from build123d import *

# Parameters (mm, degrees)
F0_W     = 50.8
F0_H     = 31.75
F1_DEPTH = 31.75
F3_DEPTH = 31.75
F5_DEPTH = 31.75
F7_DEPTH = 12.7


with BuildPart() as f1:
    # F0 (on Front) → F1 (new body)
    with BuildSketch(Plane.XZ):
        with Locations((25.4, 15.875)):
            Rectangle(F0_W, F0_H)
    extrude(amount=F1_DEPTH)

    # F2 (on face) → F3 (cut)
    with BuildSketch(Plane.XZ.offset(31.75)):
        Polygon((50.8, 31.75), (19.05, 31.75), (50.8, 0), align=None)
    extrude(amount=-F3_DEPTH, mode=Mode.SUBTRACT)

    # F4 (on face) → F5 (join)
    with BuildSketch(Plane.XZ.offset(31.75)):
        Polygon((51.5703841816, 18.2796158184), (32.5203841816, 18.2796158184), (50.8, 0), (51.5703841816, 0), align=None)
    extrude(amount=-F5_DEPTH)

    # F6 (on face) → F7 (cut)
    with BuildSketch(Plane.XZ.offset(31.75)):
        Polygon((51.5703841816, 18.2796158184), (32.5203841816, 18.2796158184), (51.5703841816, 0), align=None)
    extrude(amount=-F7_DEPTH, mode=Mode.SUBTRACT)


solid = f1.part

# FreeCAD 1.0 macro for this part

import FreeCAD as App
import Part
import Sketcher
from FreeCAD import Vector
Q = App.Units.Quantity


def add_polygon(sketch, points):
    """Adds a closed chain of lines whose ends are joined by coincident constraints."""
    first, n = sketch.GeometryCount, len(points)
    for a, b in zip(points, points[1:] + points[:1]):
        sketch.addGeometry(Part.LineSegment(App.Vector(*a, 0), App.Vector(*b, 0)), False)
    for i in range(n):
        sketch.addConstraint(Sketcher.Constraint("Coincident", first + i, 2, first + (i + 1) % n, 1))

doc = App.newDocument("Part")
body = doc.addObject("PartDesign::Body", "Body")

sketch1 = body.newObject("Sketcher::SketchObject", "Sketch")
sketch1.AttachmentSupport = (doc.getObject("XZ_Plane"), [""])
sketch1.MapMode = "FlatFace"
add_polygon(sketch1, [(0, 31.75), (0, 0), (50.8, 0), (50.8, 31.75)])
sketch1.addConstraint([
    Sketcher.Constraint("Vertical", 0),
    Sketcher.Constraint("Horizontal", 1),
    Sketcher.Constraint("Vertical", 2),
    Sketcher.Constraint("Horizontal", 3),
    Sketcher.Constraint("Coincident", 0, 2, -1, 1),
    Sketcher.Constraint("DistanceX", 1, 1, 1, 2, Q("2 in")),
    Sketcher.Constraint("DistanceY", 0, 2, 0, 1, Q("1.25 in")),
])
pad1 = body.newObject("PartDesign::Pad", "Pad")
pad1.Profile = sketch1
pad1.Length = Q("1.25 in")

sketch2 = body.newObject("Sketcher::SketchObject", "Sketch001")
sketch2.AttachmentSupport = (doc.getObject("XZ_Plane"), [""])
sketch2.MapMode = "FlatFace"
sketch2.AttachmentOffset = App.Placement(Vector(0, 0, 1.25 * 25.4), App.Rotation())
add_polygon(sketch2, [(50.8, 31.75), (19.05, 31.75), (50.8, 0)])
sketch2.addConstraint([
    Sketcher.Constraint("Horizontal", 0),
    Sketcher.Constraint("Vertical", 2),
    Sketcher.Constraint("PointOnObject", 1, 2, -1),
    Sketcher.Constraint("Equal", 0, 2),
    Sketcher.Constraint("DistanceX", -1, 1, 1, 2, Q("2 in")),
    Sketcher.Constraint("DistanceX", 0, 2, 0, 1, Q("1.25 in")),
])
pocket1 = body.newObject("PartDesign::Pocket", "Pocket")
pocket1.Profile = sketch2
pocket1.Length = Q("1.25 in")

sketch3 = body.newObject("Sketcher::SketchObject", "Sketch002")
sketch3.AttachmentSupport = (doc.getObject("XZ_Plane"), [""])
sketch3.MapMode = "FlatFace"
sketch3.AttachmentOffset = App.Placement(Vector(0, 0, 1.25 * 25.4), App.Rotation())
add_polygon(sketch3, [(51.570384, 18.279616), (32.520384, 18.279616), (50.8, 0), (51.570384, 0)])
sketch3.addConstraint([
    Sketcher.Constraint("Horizontal", 0),
    Sketcher.Constraint("Horizontal", 2),
    Sketcher.Constraint("Vertical", 3),
    Sketcher.Constraint("PointOnObject", 1, 2, -1),
    Sketcher.Constraint("DistanceX", -1, 1, 1, 2, Q("2 in")),
    Sketcher.Constraint("Angle", 1, Q("-45 deg")),
    Sketcher.Constraint("DistanceX", 0, 2, 0, 1, Q("0.75 in")),
    Sketcher.Constraint("Distance", 1, 25.851281),
])
pad2 = body.newObject("PartDesign::Pad", "Pad001")
pad2.Profile = sketch3
pad2.Length = Q("1.25 in")
pad2.Reversed = True

sketch4 = body.newObject("Sketcher::SketchObject", "Sketch003")
sketch4.AttachmentSupport = (doc.getObject("XZ_Plane"), [""])
sketch4.MapMode = "FlatFace"
sketch4.AttachmentOffset = App.Placement(Vector(0, 0, 1.25 * 25.4), App.Rotation())
add_polygon(sketch4, [(51.570384, 18.279616), (32.520384, 18.279616), (51.570384, 0)])
sketch4.addConstraint([
    Sketcher.Constraint("Horizontal", 0),
    Sketcher.Constraint("Vertical", 2),
    Sketcher.Constraint("PointOnObject", 1, 2, -1),
    Sketcher.Constraint("DistanceX", 0, 2, 0, 1, Q("0.75 in")),
    Sketcher.Constraint("DistanceY", 2, 1, 2, 2, 18.279616),
    Sketcher.Constraint("DistanceX", -1, 1, 0, 2, 32.520384),
])
pocket2 = body.newObject("PartDesign::Pocket", "Pocket001")
pocket2.Profile = sketch4
pocket2.Length = Q("0.5 in")

doc.recompute()
